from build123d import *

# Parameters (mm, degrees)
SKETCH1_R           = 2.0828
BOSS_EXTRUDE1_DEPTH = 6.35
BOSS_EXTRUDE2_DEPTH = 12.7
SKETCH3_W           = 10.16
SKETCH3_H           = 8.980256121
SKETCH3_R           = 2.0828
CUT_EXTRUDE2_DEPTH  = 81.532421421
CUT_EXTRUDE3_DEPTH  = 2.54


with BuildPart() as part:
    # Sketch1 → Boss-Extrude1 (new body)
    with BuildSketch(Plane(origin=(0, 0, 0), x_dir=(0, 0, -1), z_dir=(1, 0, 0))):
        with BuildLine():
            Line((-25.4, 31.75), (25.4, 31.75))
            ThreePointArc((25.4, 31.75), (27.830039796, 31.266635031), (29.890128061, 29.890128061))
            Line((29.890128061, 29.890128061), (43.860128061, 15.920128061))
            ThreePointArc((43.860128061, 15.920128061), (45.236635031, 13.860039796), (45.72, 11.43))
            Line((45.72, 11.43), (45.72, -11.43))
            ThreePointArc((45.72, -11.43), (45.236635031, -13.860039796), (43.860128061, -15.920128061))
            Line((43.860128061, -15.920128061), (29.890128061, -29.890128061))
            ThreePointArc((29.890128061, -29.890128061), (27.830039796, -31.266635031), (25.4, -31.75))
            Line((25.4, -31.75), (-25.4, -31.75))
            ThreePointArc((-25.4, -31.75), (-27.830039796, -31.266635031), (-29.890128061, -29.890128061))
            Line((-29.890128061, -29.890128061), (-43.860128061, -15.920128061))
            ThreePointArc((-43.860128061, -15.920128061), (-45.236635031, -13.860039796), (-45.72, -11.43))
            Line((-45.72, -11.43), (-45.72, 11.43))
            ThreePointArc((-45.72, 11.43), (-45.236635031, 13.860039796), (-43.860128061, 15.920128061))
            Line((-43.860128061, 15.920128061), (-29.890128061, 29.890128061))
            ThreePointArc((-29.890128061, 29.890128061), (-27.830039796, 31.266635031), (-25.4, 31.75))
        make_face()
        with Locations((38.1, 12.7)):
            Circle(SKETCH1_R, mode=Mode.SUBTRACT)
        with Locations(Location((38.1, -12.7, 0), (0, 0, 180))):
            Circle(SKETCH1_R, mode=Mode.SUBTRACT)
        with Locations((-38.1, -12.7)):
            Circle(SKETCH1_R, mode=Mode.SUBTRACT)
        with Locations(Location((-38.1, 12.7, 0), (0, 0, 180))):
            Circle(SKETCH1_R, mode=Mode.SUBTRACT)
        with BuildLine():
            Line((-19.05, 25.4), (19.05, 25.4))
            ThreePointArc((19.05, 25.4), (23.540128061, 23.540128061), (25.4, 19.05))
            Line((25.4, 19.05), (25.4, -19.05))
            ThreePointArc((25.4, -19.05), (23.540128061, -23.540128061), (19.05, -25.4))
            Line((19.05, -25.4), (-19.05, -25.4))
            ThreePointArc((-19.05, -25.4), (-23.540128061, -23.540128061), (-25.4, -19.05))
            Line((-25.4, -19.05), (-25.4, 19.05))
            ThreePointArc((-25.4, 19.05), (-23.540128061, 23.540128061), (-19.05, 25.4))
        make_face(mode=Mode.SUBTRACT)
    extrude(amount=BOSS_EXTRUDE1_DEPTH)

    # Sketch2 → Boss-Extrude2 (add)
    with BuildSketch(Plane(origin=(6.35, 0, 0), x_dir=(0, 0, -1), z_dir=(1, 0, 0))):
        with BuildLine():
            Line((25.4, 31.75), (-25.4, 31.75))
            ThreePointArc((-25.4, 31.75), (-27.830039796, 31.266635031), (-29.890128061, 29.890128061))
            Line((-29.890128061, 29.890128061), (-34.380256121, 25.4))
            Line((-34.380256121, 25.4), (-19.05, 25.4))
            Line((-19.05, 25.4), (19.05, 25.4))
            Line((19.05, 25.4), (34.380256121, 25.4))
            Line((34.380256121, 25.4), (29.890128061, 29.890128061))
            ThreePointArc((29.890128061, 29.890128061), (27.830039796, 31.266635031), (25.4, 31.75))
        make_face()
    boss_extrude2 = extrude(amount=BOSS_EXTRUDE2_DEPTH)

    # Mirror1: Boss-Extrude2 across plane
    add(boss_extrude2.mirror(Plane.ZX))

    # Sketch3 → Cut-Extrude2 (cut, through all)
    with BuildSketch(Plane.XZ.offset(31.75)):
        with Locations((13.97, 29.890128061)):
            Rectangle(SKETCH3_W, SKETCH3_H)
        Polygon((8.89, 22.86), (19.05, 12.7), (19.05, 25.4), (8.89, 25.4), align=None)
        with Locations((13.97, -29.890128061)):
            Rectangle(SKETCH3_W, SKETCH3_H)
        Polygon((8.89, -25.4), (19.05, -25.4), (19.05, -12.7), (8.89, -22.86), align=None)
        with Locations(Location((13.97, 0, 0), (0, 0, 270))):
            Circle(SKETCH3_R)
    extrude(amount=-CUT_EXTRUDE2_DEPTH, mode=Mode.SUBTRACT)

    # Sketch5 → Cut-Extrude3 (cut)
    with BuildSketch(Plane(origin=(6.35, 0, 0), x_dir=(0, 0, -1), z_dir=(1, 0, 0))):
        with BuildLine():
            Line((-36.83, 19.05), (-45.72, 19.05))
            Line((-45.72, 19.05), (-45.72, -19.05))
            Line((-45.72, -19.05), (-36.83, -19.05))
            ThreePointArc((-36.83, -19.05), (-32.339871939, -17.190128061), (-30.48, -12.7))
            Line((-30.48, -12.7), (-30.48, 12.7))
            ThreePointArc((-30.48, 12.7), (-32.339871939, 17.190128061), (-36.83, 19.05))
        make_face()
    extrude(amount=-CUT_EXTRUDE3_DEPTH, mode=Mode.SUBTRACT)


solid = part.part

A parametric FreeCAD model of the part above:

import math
import FreeCAD as App
import Part
import Sketcher

V = App.Vector
Q = App.Units.Quantity


def add_polygon(sketch, points):
    """Adds a closed chain of lines whose ends are joined by coincident constraints."""
    first, n = sketch.GeometryCount, len(points)
    for a, b in zip(points, points[1:] + points[:1]):
        sketch.addGeometry(Part.LineSegment(App.Vector(*a, 0), App.Vector(*b, 0)), False)
    for i in range(n):
        sketch.addConstraint(Sketcher.Constraint("Coincident", first + i, 2, first + (i + 1) % n, 1))

doc = App.newDocument("Part")
params = doc.addObject("Spreadsheet::Sheet", "Params")
for row, (alias, value) in enumerate([
    ("sketch1_height", "2 in"),
    ("sketch1_radius", "0.25 in"),
    ("sketch1_diameter", "0.164 in"),
    ("sketch1_width", "0.9 in"),
    ("pad1_length", "0.25 in"),
    ("sketch2_height", "2 in"),
    ("sketch2_radius", "0.25 in"),
    ("pad2_length", "0.5 in"),
    ("sketch3_diameter", "0.164 in"),
    ("sketch3_width", "0.4 in"),
    ("sketch4_width", "1 in"),
    ("sketch4_radius", "0.25 in"),
    ("sketch4_height", "0.35 in"),
    ("pocket2_length", "0.1 in"),
], start=1):
    params.set(f"A{row}", alias)
    params.set(f"B{row}", "=" + value)
    params.setAlias(f"B{row}", alias)

body = doc.addObject("PartDesign::Body", "Body")

sketch1 = body.newObject("Sketcher::SketchObject", "Sketch")
sketch1.AttachmentSupport = (doc.getObject("YZ_Plane"), [""])
sketch1.MapMode = "FlatFace"
sketch1.addGeometry(Part.LineSegment(V(31.8, -25.4, 0), V(31.8, 25.4, 0)), False)
sketch1.addGeometry(Part.ArcOfCircle(Part.Circle(V(25.4, 25.4, 0), V(0, 0, 1), 6.4), math.radians(0), math.radians(45)), False)
sketch1.addGeometry(Part.LineSegment(V(29.9, 29.9, 0), V(15.9, 43.9, 0)), False)
sketch1.addGeometry(Part.ArcOfCircle(Part.Circle(V(11.4, 39.4, 0), V(0, 0, 1), 6.4), math.radians(45), math.radians(90)), False)
sketch1.addGeometry(Part.LineSegment(V(11.4, 45.7, 0), V(-11.4, 45.7, 0)), False)
sketch1.addGeometry(Part.ArcOfCircle(Part.Circle(V(-11.4, 39.4, 0), V(0, 0, 1), 6.4), math.radians(90), math.radians(135)), False)
sketch1.addGeometry(Part.LineSegment(V(-15.9, 43.9, 0), V(-29.9, 29.9, 0)), False)
sketch1.addGeometry(Part.ArcOfCircle(Part.Circle(V(-25.4, 25.4, 0), V(0, 0, 1), 6.4), math.radians(135), math.radians(180)), False)
sketch1.addGeometry(Part.LineSegment(V(-31.8, 25.4, 0), V(-31.8, -25.4, 0)), False)
sketch1.addGeometry(Part.ArcOfCircle(Part.Circle(V(-25.4, -25.4, 0), V(0, 0, 1), 6.4), math.radians(-180), math.radians(-135)), False)
sketch1.addGeometry(Part.LineSegment(V(-29.9, -29.9, 0), V(-15.9, -43.9, 0)), False)
sketch1.addGeometry(Part.ArcOfCircle(Part.Circle(V(-11.4, -39.4, 0), V(0, 0, 1), 6.4), math.radians(-135), math.radians(-90)), False)
sketch1.addGeometry(Part.LineSegment(V(-11.4, -45.7, 0), V(11.4, -45.7, 0)), False)
sketch1.addGeometry(Part.ArcOfCircle(Part.Circle(V(11.4, -39.4, 0), V(0, 0, 1), 6.4), math.radians(-90), math.radians(-45)), False)
sketch1.addGeometry(Part.LineSegment(V(15.9, -43.9, 0), V(29.9, -29.9, 0)), False)
sketch1.addGeometry(Part.ArcOfCircle(Part.Circle(V(25.4, -25.4, 0), V(0, 0, 1), 6.4), math.radians(-45), math.radians(0)), False)
sketch1.addGeometry(Part.Circle(V(-12.7, -38.1, 0), V(0, 0, 1), 2.1), False)
sketch1.addGeometry(Part.Circle(V(-12.7, 38.1, 0), V(0, 0, 1), 2.1), False)
sketch1.addGeometry(Part.LineSegment(V(25.4, 19.1, 0), V(25.4, -19.1, 0)), False)
sketch1.addGeometry(Part.ArcOfCircle(Part.Circle(V(19.1, -19.1, 0), V(0, 0, 1), 6.3), math.radians(-90), math.radians(0)), False)
sketch1.addGeometry(Part.LineSegment(V(19.1, -25.4, 0), V(-19.1, -25.4, 0)), False)
sketch1.addGeometry(Part.ArcOfCircle(Part.Circle(V(-19.1, -19.1, 0), V(0, 0, 1), 6.3), math.radians(180), math.radians(270)), False)
sketch1.addGeometry(Part.LineSegment(V(-25.4, -19.1, 0), V(-25.4, 19.1, 0)), False)
sketch1.addGeometry(Part.ArcOfCircle(Part.Circle(V(-19.1, 19.1, 0), V(0, 0, 1), 6.3), math.radians(90), math.radians(180)), False)
sketch1.addGeometry(Part.LineSegment(V(-19.1, 25.4, 0), V(19.1, 25.4, 0)), False)
sketch1.addGeometry(Part.ArcOfCircle(Part.Circle(V(19.1, 19.1, 0), V(0, 0, 1), 6.3), math.radians(0), math.radians(90)), False)
sketch1.addGeometry(Part.Circle(V(12.7, -38.1, 0), V(0, 0, 1), 2.1), False)
sketch1.addGeometry(Part.Circle(V(12.7, 38.1, 0), V(0, 0, 1), 2.1), False)
sketch1.addConstraint(Sketcher.Constraint("Tangent", 0, 2, 1, 1))
sketch1.addConstraint(Sketcher.Constraint("Tangent", 1, 2, 2, 1))
sketch1.addConstraint(Sketcher.Constraint("Tangent", 2, 2, 3, 1))
sketch1.addConstraint(Sketcher.Constraint("Tangent", 3, 2, 4, 1))
sketch1.addConstraint(Sketcher.Constraint("Tangent", 4, 2, 5, 1))
sketch1.addConstraint(Sketcher.Constraint("Tangent", 5, 2, 6, 1))
sketch1.addConstraint(Sketcher.Constraint("Tangent", 6, 2, 7, 1))
sketch1.addConstraint(Sketcher.Constraint("Tangent", 7, 2, 8, 1))
sketch1.addConstraint(Sketcher.Constraint("Tangent", 8, 2, 9, 1))
sketch1.addConstraint(Sketcher.Constraint("Tangent", 9, 2, 10, 1))
sketch1.addConstraint(Sketcher.Constraint("Tangent", 10, 2, 11, 1))
sketch1.addConstraint(Sketcher.Constraint("Tangent", 11, 2, 12, 1))
sketch1.addConstraint(Sketcher.Constraint("Tangent", 12, 2, 13, 1))
sketch1.addConstraint(Sketcher.Constraint("Tangent", 13, 2, 14, 1))
sketch1.addConstraint(Sketcher.Constraint("Tangent", 14, 2, 15, 1))
sketch1.addConstraint(Sketcher.Constraint("Tangent", 15, 2, 0, 1))
sketch1.addConstraint(Sketcher.Constraint("Tangent", 18, 2, 19, 2))
sketch1.addConstraint(Sketcher.Constraint("Tangent", 19, 1, 20, 1))
sketch1.addConstraint(Sketcher.Constraint("Tangent", 20, 2, 21, 2))
sketch1.addConstraint(Sketcher.Constraint("Tangent", 21, 1, 22, 1))
sketch1.addConstraint(Sketcher.Constraint("Tangent", 22, 2, 23, 2))
sketch1.addConstraint(Sketcher.Constraint("Tangent", 23, 1, 24, 1))
sketch1.addConstraint(Sketcher.Constraint("Tangent", 24, 2, 25, 2))
sketch1.addConstraint(Sketcher.Constraint("Tangent", 25, 1, 18, 1))
sketch1.addConstraint(Sketcher.Constraint("Vertical", 0))
sketch1.addConstraint(Sketcher.Constraint("Horizontal", 4))
sketch1.addConstraint(Sketcher.Constraint("Vertical", 8))
sketch1.addConstraint(Sketcher.Constraint("Horizontal", 12))
sketch1.addConstraint(Sketcher.Constraint("Vertical", 18))
sketch1.addConstraint(Sketcher.Constraint("Horizontal", 20))
sketch1.addConstraint(Sketcher.Constraint("Vertical", 22))
sketch1.addConstraint(Sketcher.Constraint("Horizontal", 24))
sketch1.addConstraint(Sketcher.Constraint("Equal", 1, 3))
sketch1.addConstraint(Sketcher.Constraint("Equal", 3, 5))
sketch1.addConstraint(Sketcher.Constraint("Equal", 5, 7))
sketch1.addConstraint(Sketcher.Constraint("Equal", 7, 9))
sketch1.addConstraint(Sketcher.Constraint("Equal", 9, 11))
sketch1.addConstraint(Sketcher.Constraint("Equal", 11, 13))
sketch1.addConstraint(Sketcher.Constraint("Equal", 13, 15))
sketch1.addConstraint(Sketcher.Constraint("Equal", 16, 17))
sketch1.addConstraint(Sketcher.Constraint("Equal", 15, 19))
sketch1.addConstraint(Sketcher.Constraint("Equal", 19, 21))
sketch1.addConstraint(Sketcher.Constraint("Equal", 21, 23))
sketch1.addConstraint(Sketcher.Constraint("Equal", 23, 25))
sketch1.addConstraint(Sketcher.Constraint("Equal", 17, 26))
sketch1.addConstraint(Sketcher.Constraint("Equal", 26, 27))
sketch1.addConstraint(Sketcher.Constraint("Symmetric", 1, 3, 9, 3, -1, 1))
sketch1.addConstraint(Sketcher.Constraint("Symmetric", 3, 3, 11, 3, -1, 1))
sketch1.addConstraint(Sketcher.Constraint("Symmetric", 19, 3, 23, 3, -1, 1))
sketch1.addConstraint(Sketcher.Constraint("Symmetric", 17, 3, 26, 3, -1, 1))
sketch1.addConstraint(Sketcher.Constraint("Symmetric", 16, 3, 27, 3, -1, 1))
sketch1.addConstraint(Sketcher.Constraint("Symmetric", 5, 2, 13, 2, -1, 1))
sketch1.addConstraint(Sketcher.Constraint("Symmetric", 16, 3, 26, 3, -2))
sketch1.addConstraint(Sketcher.Constraint("Symmetric", 2, 2, 5, 2, -2))
sketch1.addConstraint(Sketcher.Constraint("Perpendicular", 2, 6))
sketch1.addConstraint(Sketcher.Constraint("Horizontal", 15, 2, 19, 1))
sketch1.addConstraint(Sketcher.Constraint("Vertical", 15, 3, 18, 2))
sketch1.addConstraint(Sketcher.Constraint("Equal", 24, 18))
sketch1.addConstraint(Sketcher.Constraint("DistanceY", 0, 1, 0, 2, Q("2 in")))
sketch1.addConstraint(Sketcher.Constraint("Radius", 1, Q("0.25 in")))
sketch1.addConstraint(Sketcher.Constraint("Diameter", 16, Q("0.164 in")))
sketch1.addConstraint(Sketcher.Constraint("DistanceX", 4, 2, 4, 1, Q("0.9 in")))
sketch1.addConstraint(Sketcher.Constraint("DistanceX", 16, 3, 26, 3, Q("1 in")))
sketch1.addConstraint(Sketcher.Constraint("DistanceY", 16, 3, -1, 1, Q("1.5 in")))
sketch1.setExpression("Constraints[58]", "Params.sketch1_height")
sketch1.setExpression("Constraints[59]", "Params.sketch1_radius")
sketch1.setExpression("Constraints[60]", "Params.sketch1_diameter")
sketch1.setExpression("Constraints[61]", "Params.sketch1_width")
pad1 = body.newObject("PartDesign::Pad", "Pad")
pad1.Profile = sketch1
pad1.setExpression("Length", "Params.pad1_length")

sketch2 = body.newObject("Sketcher::SketchObject", "Sketch001")
sketch2.AttachmentSupport = (doc.getObject("YZ_Plane"), [""])
sketch2.MapMode = "FlatFace"
sketch2.AttachmentOffset = App.Placement(V(0, 0, 0.25 * 25.4), App.Rotation())
sketch2.addGeometry(Part.LineSegment(V(31.8, -25.4, 0), V(31.8, 25.4, 0)), False)
sketch2.addGeometry(Part.ArcOfCircle(Part.Circle(V(25.4, 25.4, 0), V(0, 0, 1), 6.4), math.radians(0), math.radians(45)), False)
sketch2.addGeometry(Part.LineSegment(V(29.9, 29.9, 0), V(25.4, 34.4, 0)), False)
sketch2.addGeometry(Part.LineSegment(V(25.4, 34.4, 0), V(25.4, -34.4, 0)), False)
sketch2.addGeometry(Part.LineSegment(V(25.4, -34.4, 0), V(29.9, -29.9, 0)), False)
sketch2.addGeometry(Part.ArcOfCircle(Part.Circle(V(25.4, -25.4, 0), V(0, 0, 1), 6.4), math.radians(-45), math.radians(0)), False)
sketch2.addConstraint(Sketcher.Constraint("Tangent", 0, 2, 1, 1))
sketch2.addConstraint(Sketcher.Constraint("Tangent", 1, 2, 2, 1))
sketch2.addConstraint(Sketcher.Constraint("Coincident", 2, 2, 3, 1))
sketch2.addConstraint(Sketcher.Constraint("Coincident", 3, 2, 4, 1))
sketch2.addConstraint(Sketcher.Constraint("Tangent", 4, 2, 5, 1))
sketch2.addConstraint(Sketcher.Constraint("Tangent", 5, 2, 0, 1))
sketch2.addConstraint(Sketcher.Constraint("Vertical", 0))
sketch2.addConstraint(Sketcher.Constraint("Vertical", 3))
sketch2.addConstraint(Sketcher.Constraint("Equal", 1, 5))
sketch2.addConstraint(Sketcher.Constraint("Symmetric", 1, 2, 4, 2, -1))
sketch2.addConstraint(Sketcher.Constraint("Perpendicular", 2, 4))
sketch2.addConstraint(Sketcher.Constraint("Vertical", 5, 3, 2, 2))
sketch2.addConstraint(Sketcher.Constraint("DistanceY", 0, 1, 0, 2, Q("2 in")))
sketch2.addConstraint(Sketcher.Constraint("Radius", 1, Q("0.25 in")))
sketch2.addConstraint(Sketcher.Constraint("DistanceX", -1, 1, 1, 3, Q("1 in")))
sketch2.setExpression("Constraints[12]", "Params.sketch2_height")
sketch2.setExpression("Constraints[13]", "Params.sketch2_radius")
pad2 = body.newObject("PartDesign::Pad", "Pad001")
pad2.Profile = sketch2
pad2.setExpression("Length", "Params.pad2_length")
doc.recompute()

mirrored = body.newObject("PartDesign::Mirrored", "Mirrored")
mirrored.Originals = [pad2]
mirrored.MirrorPlane = (doc.getObject("XZ_Plane"), [""])
body.Tip = mirrored

sketch3 = body.newObject("Sketcher::SketchObject", "Sketch002")
sketch3.AttachmentSupport = (doc.getObject("XZ_Plane"), [""])
sketch3.MapMode = "FlatFace"
sketch3.AttachmentOffset = App.Placement(V(0, 0, 1.25 * 25.4), App.Rotation())
add_polygon(sketch3, [(8.9, 34.4), (8.9, 22.9), (19.1, 12.7), (19.1, 34.4)])
add_polygon(sketch3, [(8.9, -34.4), (19.1, -34.4), (19.1, -12.7), (8.9, -22.9)])
sketch3.addGeometry(Part.Circle(V(14, 0, 0), V(0, 0, 1), 2.1), False)
sketch3.addConstraint(Sketcher.Constraint("Vertical", 0))
sketch3.addConstraint(Sketcher.Constraint("Vertical", 2))
sketch3.addConstraint(Sketcher.Constraint("Horizontal", 3))
sketch3.addConstraint(Sketcher.Constraint("Horizontal", 4))
sketch3.addConstraint(Sketcher.Constraint("Vertical", 5))
sketch3.addConstraint(Sketcher.Constraint("Vertical", 7))
sketch3.addConstraint(Sketcher.Constraint("Symmetric", 2, 2, 4, 2, -1))
sketch3.addConstraint(Sketcher.Constraint("Symmetric", 0, 2, 6, 2, -1))
sketch3.addConstraint(Sketcher.Constraint("PointOnObject", 8, 3, -1))
sketch3.addConstraint(Sketcher.Constraint("Perpendicular", 1, 6))
sketch3.addConstraint(Sketcher.Constraint("Equal", 2, 5))
sketch3.addConstraint(Sketcher.Constraint("Diameter", 8, Q("0.164 in")))
sketch3.addConstraint(Sketcher.Constraint("DistanceX", 3, 2, 3, 1, Q("0.4 in")))
sketch3.addConstraint(Sketcher.Constraint("DistanceY", 5, 2, 1, 2, Q("1 in")))
sketch3.addConstraint(Sketcher.Constraint("DistanceX", 0, 2, 8, 3, Q("0.2 in")))
sketch3.addConstraint(Sketcher.Constraint("DistanceX", -1, 1, 8, 3, Q("0.55 in")))
sketch3.addConstraint(Sketcher.Constraint("DistanceY", 0, 2, 0, 1, 11.520256))
sketch3.setExpression("Constraints[19]", "Params.sketch3_diameter")
sketch3.setExpression("Constraints[20]", "Params.sketch3_width")
pocket1 = body.newObject("PartDesign::Pocket", "Pocket")
pocket1.Profile = sketch3
pocket1.Type = "ThroughAll"

sketch4 = body.newObject("Sketcher::SketchObject", "Sketch003")
sketch4.AttachmentSupport = (doc.getObject("YZ_Plane"), [""])
sketch4.MapMode = "FlatFace"
sketch4.AttachmentOffset = App.Placement(V(0, 0, 0.25 * 25.4), App.Rotation())
sketch4.addGeometry(Part.LineSegment(V(19, 37, 0), V(19, 46, 0)), False)
sketch4.addGeometry(Part.LineSegment(V(19, 46, 0), V(-19, 46, 0)), False)
sketch4.addGeometry(Part.LineSegment(V(-19, 46, 0), V(-19, 37, 0)), False)
sketch4.addGeometry(Part.ArcOfCircle(Part.Circle(V(-13, 37, 0), V(0, 0, 1), 6), math.radians(180), math.radians(270)), False)
sketch4.addGeometry(Part.LineSegment(V(-13, 30, 0), V(13, 30, 0)), False)
sketch4.addGeometry(Part.ArcOfCircle(Part.Circle(V(13, 37, 0), V(0, 0, 1), 6), math.radians(-90), math.radians(0)), False)
sketch4.addConstraint(Sketcher.Constraint("Coincident", 0, 2, 1, 1))
sketch4.addConstraint(Sketcher.Constraint("Coincident", 1, 2, 2, 1))
sketch4.addConstraint(Sketcher.Constraint("Tangent", 2, 2, 3, 1))
sketch4.addConstraint(Sketcher.Constraint("Tangent", 3, 2, 4, 1))
sketch4.addConstraint(Sketcher.Constraint("Tangent", 4, 2, 5, 1))
sketch4.addConstraint(Sketcher.Constraint("Tangent", 5, 2, 0, 1))
sketch4.addConstraint(Sketcher.Constraint("Vertical", 0))
sketch4.addConstraint(Sketcher.Constraint("Horizontal", 1))
sketch4.addConstraint(Sketcher.Constraint("Vertical", 2))
sketch4.addConstraint(Sketcher.Constraint("Horizontal", 4))
sketch4.addConstraint(Sketcher.Constraint("Equal", 3, 5))
sketch4.addConstraint(Sketcher.Constraint("DistanceX", 4, 1, 4, 2, Q("1 in")))
sketch4.addConstraint(Sketcher.Constraint("Radius", 3, Q("0.25 in")))
sketch4.addConstraint(Sketcher.Constraint("DistanceY", 0, 1, 0, 2, Q("0.35 in")))
sketch4.addConstraint(Sketcher.Constraint("DistanceX", 3, 3, -1, 1, Q("0.5 in")))
sketch4.addConstraint(Sketcher.Constraint("DistanceY", -1, 1, 0, 2, Q("1.8 in")))
sketch4.setExpression("Constraints[11]", "Params.sketch4_width")
sketch4.setExpression("Constraints[12]", "Params.sketch4_radius")
sketch4.setExpression("Constraints[13]", "Params.sketch4_height")
pocket2 = body.newObject("PartDesign::Pocket", "Pocket001")
pocket2.Profile = sketch4
pocket2.setExpression("Length", "Params.pocket2_length")

doc.recompute()
